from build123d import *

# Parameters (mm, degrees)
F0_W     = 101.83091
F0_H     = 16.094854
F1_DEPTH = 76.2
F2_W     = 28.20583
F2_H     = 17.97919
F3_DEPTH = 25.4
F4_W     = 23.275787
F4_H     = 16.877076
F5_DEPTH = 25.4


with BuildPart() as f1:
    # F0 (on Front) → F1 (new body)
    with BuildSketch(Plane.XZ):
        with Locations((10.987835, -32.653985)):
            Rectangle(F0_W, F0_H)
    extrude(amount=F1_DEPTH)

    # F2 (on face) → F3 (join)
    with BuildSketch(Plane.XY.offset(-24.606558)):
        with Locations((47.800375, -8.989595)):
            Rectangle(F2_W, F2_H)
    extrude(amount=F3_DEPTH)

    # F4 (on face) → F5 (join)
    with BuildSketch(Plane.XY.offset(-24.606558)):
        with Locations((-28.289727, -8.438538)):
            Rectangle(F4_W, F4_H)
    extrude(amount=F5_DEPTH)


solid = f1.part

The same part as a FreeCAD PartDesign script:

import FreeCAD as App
import Part
import Sketcher

V = App.Vector
Q = App.Units.Quantity


def add_polygon(sketch, points):
    """Adds a closed chain of lines whose ends are joined by coincident constraints."""
    first, n = sketch.GeometryCount, len(points)
    for a, b in zip(points, points[1:] + points[:1]):
        sketch.addGeometry(Part.LineSegment(App.Vector(*a, 0), App.Vector(*b, 0)), False)
    for i in range(n):
        sketch.addConstraint(Sketcher.Constraint("Coincident", first + i, 2, first + (i + 1) % n, 1))

doc = App.newDocument("Part")
body = doc.addObject("PartDesign::Body", "Body")

# Sketch on XZ plane
sketch1 = body.newObject("Sketcher::SketchObject", "Sketch")
sketch1.AttachmentSupport = (doc.getObject("XZ_Plane"), [""])
sketch1.MapMode = "FlatFace"
add_polygon(sketch1, [(-40, -25), (-40, -41), (62, -41), (62, -25)])  # lines 0-3
sketch1.addConstraint(Sketcher.Constraint("Vertical", 0))
sketch1.addConstraint(Sketcher.Constraint("Horizontal", 1))
sketch1.addConstraint(Sketcher.Constraint("Vertical", 2))
sketch1.addConstraint(Sketcher.Constraint("Horizontal", 3))
sketch1.addConstraint(Sketcher.Constraint("DistanceX", 1, 1, 1, 2, Q("101.83091 mm")))
sketch1.addConstraint(Sketcher.Constraint("DistanceY", 0, 2, 0, 1, Q("16.094854 mm")))
sketch1.addConstraint(Sketcher.Constraint("DistanceX", 0, 2, -1, 1, Q("39.92762 mm")))
sketch1.addConstraint(Sketcher.Constraint("DistanceY", 0, 2, -1, 1, Q("40.701412 mm")))
pad1 = body.newObject("PartDesign::Pad", "Pad")
pad1.Profile = sketch1
pad1.Length = Q("3 in")

# Sketch on XY plane
sketch2 = body.newObject("Sketcher::SketchObject", "Sketch001")
sketch2.AttachmentSupport = (doc.getObject("XY_Plane"), [""])
sketch2.MapMode = "FlatFace"
sketch2.AttachmentOffset = App.Placement(V(0, 0, -24.606558), App.Rotation())
add_polygon(sketch2, [(34, 0), (34, -18), (62, -18), (62, 0)])  # lines 0-3
sketch2.addConstraint(Sketcher.Constraint("Vertical", 0))
sketch2.addConstraint(Sketcher.Constraint("Horizontal", 1))
sketch2.addConstraint(Sketcher.Constraint("Vertical", 2))
sketch2.addConstraint(Sketcher.Constraint("Horizontal", 3))
sketch2.addConstraint(Sketcher.Constraint("PointOnObject", 2, 2, -1))
sketch2.addConstraint(Sketcher.Constraint("DistanceX", 1, 1, 1, 2, Q("28.20583 mm")))
sketch2.addConstraint(Sketcher.Constraint("DistanceY", 0, 2, 0, 1, Q("17.97919 mm")))
sketch2.addConstraint(Sketcher.Constraint("DistanceX", -1, 1, 0, 2, Q("33.69746 mm")))
pad2 = body.newObject("PartDesign::Pad", "Pad001")
pad2.Profile = sketch2
pad2.Length = Q("1 in")

# Sketch on XY plane
sketch3 = body.newObject("Sketcher::SketchObject", "Sketch002")
sketch3.AttachmentSupport = (doc.getObject("XY_Plane"), [""])
sketch3.MapMode = "FlatFace"
sketch3.AttachmentOffset = App.Placement(V(0, 0, -24.606558), App.Rotation())
add_polygon(sketch3, [(-40, 0), (-40, -17), (-17, -17), (-17, 0)])  # lines 0-3
sketch3.addConstraint(Sketcher.Constraint("Vertical", 0))
sketch3.addConstraint(Sketcher.Constraint("Horizontal", 1))
sketch3.addConstraint(Sketcher.Constraint("Vertical", 2))
sketch3.addConstraint(Sketcher.Constraint("Horizontal", 3))
sketch3.addConstraint(Sketcher.Constraint("PointOnObject", 2, 2, -1))
sketch3.addConstraint(Sketcher.Constraint("DistanceX", 1, 1, 1, 2, Q("23.275787 mm")))
sketch3.addConstraint(Sketcher.Constraint("DistanceY", 0, 2, 0, 1, Q("16.877076 mm")))
sketch3.addConstraint(Sketcher.Constraint("DistanceX", 0, 2, -1, 1, Q("39.927621 mm")))
pad3 = body.newObject("PartDesign::Pad", "Pad002")
pad3.Profile = sketch3
pad3.Length = Q("1 in")

doc.recompute()
